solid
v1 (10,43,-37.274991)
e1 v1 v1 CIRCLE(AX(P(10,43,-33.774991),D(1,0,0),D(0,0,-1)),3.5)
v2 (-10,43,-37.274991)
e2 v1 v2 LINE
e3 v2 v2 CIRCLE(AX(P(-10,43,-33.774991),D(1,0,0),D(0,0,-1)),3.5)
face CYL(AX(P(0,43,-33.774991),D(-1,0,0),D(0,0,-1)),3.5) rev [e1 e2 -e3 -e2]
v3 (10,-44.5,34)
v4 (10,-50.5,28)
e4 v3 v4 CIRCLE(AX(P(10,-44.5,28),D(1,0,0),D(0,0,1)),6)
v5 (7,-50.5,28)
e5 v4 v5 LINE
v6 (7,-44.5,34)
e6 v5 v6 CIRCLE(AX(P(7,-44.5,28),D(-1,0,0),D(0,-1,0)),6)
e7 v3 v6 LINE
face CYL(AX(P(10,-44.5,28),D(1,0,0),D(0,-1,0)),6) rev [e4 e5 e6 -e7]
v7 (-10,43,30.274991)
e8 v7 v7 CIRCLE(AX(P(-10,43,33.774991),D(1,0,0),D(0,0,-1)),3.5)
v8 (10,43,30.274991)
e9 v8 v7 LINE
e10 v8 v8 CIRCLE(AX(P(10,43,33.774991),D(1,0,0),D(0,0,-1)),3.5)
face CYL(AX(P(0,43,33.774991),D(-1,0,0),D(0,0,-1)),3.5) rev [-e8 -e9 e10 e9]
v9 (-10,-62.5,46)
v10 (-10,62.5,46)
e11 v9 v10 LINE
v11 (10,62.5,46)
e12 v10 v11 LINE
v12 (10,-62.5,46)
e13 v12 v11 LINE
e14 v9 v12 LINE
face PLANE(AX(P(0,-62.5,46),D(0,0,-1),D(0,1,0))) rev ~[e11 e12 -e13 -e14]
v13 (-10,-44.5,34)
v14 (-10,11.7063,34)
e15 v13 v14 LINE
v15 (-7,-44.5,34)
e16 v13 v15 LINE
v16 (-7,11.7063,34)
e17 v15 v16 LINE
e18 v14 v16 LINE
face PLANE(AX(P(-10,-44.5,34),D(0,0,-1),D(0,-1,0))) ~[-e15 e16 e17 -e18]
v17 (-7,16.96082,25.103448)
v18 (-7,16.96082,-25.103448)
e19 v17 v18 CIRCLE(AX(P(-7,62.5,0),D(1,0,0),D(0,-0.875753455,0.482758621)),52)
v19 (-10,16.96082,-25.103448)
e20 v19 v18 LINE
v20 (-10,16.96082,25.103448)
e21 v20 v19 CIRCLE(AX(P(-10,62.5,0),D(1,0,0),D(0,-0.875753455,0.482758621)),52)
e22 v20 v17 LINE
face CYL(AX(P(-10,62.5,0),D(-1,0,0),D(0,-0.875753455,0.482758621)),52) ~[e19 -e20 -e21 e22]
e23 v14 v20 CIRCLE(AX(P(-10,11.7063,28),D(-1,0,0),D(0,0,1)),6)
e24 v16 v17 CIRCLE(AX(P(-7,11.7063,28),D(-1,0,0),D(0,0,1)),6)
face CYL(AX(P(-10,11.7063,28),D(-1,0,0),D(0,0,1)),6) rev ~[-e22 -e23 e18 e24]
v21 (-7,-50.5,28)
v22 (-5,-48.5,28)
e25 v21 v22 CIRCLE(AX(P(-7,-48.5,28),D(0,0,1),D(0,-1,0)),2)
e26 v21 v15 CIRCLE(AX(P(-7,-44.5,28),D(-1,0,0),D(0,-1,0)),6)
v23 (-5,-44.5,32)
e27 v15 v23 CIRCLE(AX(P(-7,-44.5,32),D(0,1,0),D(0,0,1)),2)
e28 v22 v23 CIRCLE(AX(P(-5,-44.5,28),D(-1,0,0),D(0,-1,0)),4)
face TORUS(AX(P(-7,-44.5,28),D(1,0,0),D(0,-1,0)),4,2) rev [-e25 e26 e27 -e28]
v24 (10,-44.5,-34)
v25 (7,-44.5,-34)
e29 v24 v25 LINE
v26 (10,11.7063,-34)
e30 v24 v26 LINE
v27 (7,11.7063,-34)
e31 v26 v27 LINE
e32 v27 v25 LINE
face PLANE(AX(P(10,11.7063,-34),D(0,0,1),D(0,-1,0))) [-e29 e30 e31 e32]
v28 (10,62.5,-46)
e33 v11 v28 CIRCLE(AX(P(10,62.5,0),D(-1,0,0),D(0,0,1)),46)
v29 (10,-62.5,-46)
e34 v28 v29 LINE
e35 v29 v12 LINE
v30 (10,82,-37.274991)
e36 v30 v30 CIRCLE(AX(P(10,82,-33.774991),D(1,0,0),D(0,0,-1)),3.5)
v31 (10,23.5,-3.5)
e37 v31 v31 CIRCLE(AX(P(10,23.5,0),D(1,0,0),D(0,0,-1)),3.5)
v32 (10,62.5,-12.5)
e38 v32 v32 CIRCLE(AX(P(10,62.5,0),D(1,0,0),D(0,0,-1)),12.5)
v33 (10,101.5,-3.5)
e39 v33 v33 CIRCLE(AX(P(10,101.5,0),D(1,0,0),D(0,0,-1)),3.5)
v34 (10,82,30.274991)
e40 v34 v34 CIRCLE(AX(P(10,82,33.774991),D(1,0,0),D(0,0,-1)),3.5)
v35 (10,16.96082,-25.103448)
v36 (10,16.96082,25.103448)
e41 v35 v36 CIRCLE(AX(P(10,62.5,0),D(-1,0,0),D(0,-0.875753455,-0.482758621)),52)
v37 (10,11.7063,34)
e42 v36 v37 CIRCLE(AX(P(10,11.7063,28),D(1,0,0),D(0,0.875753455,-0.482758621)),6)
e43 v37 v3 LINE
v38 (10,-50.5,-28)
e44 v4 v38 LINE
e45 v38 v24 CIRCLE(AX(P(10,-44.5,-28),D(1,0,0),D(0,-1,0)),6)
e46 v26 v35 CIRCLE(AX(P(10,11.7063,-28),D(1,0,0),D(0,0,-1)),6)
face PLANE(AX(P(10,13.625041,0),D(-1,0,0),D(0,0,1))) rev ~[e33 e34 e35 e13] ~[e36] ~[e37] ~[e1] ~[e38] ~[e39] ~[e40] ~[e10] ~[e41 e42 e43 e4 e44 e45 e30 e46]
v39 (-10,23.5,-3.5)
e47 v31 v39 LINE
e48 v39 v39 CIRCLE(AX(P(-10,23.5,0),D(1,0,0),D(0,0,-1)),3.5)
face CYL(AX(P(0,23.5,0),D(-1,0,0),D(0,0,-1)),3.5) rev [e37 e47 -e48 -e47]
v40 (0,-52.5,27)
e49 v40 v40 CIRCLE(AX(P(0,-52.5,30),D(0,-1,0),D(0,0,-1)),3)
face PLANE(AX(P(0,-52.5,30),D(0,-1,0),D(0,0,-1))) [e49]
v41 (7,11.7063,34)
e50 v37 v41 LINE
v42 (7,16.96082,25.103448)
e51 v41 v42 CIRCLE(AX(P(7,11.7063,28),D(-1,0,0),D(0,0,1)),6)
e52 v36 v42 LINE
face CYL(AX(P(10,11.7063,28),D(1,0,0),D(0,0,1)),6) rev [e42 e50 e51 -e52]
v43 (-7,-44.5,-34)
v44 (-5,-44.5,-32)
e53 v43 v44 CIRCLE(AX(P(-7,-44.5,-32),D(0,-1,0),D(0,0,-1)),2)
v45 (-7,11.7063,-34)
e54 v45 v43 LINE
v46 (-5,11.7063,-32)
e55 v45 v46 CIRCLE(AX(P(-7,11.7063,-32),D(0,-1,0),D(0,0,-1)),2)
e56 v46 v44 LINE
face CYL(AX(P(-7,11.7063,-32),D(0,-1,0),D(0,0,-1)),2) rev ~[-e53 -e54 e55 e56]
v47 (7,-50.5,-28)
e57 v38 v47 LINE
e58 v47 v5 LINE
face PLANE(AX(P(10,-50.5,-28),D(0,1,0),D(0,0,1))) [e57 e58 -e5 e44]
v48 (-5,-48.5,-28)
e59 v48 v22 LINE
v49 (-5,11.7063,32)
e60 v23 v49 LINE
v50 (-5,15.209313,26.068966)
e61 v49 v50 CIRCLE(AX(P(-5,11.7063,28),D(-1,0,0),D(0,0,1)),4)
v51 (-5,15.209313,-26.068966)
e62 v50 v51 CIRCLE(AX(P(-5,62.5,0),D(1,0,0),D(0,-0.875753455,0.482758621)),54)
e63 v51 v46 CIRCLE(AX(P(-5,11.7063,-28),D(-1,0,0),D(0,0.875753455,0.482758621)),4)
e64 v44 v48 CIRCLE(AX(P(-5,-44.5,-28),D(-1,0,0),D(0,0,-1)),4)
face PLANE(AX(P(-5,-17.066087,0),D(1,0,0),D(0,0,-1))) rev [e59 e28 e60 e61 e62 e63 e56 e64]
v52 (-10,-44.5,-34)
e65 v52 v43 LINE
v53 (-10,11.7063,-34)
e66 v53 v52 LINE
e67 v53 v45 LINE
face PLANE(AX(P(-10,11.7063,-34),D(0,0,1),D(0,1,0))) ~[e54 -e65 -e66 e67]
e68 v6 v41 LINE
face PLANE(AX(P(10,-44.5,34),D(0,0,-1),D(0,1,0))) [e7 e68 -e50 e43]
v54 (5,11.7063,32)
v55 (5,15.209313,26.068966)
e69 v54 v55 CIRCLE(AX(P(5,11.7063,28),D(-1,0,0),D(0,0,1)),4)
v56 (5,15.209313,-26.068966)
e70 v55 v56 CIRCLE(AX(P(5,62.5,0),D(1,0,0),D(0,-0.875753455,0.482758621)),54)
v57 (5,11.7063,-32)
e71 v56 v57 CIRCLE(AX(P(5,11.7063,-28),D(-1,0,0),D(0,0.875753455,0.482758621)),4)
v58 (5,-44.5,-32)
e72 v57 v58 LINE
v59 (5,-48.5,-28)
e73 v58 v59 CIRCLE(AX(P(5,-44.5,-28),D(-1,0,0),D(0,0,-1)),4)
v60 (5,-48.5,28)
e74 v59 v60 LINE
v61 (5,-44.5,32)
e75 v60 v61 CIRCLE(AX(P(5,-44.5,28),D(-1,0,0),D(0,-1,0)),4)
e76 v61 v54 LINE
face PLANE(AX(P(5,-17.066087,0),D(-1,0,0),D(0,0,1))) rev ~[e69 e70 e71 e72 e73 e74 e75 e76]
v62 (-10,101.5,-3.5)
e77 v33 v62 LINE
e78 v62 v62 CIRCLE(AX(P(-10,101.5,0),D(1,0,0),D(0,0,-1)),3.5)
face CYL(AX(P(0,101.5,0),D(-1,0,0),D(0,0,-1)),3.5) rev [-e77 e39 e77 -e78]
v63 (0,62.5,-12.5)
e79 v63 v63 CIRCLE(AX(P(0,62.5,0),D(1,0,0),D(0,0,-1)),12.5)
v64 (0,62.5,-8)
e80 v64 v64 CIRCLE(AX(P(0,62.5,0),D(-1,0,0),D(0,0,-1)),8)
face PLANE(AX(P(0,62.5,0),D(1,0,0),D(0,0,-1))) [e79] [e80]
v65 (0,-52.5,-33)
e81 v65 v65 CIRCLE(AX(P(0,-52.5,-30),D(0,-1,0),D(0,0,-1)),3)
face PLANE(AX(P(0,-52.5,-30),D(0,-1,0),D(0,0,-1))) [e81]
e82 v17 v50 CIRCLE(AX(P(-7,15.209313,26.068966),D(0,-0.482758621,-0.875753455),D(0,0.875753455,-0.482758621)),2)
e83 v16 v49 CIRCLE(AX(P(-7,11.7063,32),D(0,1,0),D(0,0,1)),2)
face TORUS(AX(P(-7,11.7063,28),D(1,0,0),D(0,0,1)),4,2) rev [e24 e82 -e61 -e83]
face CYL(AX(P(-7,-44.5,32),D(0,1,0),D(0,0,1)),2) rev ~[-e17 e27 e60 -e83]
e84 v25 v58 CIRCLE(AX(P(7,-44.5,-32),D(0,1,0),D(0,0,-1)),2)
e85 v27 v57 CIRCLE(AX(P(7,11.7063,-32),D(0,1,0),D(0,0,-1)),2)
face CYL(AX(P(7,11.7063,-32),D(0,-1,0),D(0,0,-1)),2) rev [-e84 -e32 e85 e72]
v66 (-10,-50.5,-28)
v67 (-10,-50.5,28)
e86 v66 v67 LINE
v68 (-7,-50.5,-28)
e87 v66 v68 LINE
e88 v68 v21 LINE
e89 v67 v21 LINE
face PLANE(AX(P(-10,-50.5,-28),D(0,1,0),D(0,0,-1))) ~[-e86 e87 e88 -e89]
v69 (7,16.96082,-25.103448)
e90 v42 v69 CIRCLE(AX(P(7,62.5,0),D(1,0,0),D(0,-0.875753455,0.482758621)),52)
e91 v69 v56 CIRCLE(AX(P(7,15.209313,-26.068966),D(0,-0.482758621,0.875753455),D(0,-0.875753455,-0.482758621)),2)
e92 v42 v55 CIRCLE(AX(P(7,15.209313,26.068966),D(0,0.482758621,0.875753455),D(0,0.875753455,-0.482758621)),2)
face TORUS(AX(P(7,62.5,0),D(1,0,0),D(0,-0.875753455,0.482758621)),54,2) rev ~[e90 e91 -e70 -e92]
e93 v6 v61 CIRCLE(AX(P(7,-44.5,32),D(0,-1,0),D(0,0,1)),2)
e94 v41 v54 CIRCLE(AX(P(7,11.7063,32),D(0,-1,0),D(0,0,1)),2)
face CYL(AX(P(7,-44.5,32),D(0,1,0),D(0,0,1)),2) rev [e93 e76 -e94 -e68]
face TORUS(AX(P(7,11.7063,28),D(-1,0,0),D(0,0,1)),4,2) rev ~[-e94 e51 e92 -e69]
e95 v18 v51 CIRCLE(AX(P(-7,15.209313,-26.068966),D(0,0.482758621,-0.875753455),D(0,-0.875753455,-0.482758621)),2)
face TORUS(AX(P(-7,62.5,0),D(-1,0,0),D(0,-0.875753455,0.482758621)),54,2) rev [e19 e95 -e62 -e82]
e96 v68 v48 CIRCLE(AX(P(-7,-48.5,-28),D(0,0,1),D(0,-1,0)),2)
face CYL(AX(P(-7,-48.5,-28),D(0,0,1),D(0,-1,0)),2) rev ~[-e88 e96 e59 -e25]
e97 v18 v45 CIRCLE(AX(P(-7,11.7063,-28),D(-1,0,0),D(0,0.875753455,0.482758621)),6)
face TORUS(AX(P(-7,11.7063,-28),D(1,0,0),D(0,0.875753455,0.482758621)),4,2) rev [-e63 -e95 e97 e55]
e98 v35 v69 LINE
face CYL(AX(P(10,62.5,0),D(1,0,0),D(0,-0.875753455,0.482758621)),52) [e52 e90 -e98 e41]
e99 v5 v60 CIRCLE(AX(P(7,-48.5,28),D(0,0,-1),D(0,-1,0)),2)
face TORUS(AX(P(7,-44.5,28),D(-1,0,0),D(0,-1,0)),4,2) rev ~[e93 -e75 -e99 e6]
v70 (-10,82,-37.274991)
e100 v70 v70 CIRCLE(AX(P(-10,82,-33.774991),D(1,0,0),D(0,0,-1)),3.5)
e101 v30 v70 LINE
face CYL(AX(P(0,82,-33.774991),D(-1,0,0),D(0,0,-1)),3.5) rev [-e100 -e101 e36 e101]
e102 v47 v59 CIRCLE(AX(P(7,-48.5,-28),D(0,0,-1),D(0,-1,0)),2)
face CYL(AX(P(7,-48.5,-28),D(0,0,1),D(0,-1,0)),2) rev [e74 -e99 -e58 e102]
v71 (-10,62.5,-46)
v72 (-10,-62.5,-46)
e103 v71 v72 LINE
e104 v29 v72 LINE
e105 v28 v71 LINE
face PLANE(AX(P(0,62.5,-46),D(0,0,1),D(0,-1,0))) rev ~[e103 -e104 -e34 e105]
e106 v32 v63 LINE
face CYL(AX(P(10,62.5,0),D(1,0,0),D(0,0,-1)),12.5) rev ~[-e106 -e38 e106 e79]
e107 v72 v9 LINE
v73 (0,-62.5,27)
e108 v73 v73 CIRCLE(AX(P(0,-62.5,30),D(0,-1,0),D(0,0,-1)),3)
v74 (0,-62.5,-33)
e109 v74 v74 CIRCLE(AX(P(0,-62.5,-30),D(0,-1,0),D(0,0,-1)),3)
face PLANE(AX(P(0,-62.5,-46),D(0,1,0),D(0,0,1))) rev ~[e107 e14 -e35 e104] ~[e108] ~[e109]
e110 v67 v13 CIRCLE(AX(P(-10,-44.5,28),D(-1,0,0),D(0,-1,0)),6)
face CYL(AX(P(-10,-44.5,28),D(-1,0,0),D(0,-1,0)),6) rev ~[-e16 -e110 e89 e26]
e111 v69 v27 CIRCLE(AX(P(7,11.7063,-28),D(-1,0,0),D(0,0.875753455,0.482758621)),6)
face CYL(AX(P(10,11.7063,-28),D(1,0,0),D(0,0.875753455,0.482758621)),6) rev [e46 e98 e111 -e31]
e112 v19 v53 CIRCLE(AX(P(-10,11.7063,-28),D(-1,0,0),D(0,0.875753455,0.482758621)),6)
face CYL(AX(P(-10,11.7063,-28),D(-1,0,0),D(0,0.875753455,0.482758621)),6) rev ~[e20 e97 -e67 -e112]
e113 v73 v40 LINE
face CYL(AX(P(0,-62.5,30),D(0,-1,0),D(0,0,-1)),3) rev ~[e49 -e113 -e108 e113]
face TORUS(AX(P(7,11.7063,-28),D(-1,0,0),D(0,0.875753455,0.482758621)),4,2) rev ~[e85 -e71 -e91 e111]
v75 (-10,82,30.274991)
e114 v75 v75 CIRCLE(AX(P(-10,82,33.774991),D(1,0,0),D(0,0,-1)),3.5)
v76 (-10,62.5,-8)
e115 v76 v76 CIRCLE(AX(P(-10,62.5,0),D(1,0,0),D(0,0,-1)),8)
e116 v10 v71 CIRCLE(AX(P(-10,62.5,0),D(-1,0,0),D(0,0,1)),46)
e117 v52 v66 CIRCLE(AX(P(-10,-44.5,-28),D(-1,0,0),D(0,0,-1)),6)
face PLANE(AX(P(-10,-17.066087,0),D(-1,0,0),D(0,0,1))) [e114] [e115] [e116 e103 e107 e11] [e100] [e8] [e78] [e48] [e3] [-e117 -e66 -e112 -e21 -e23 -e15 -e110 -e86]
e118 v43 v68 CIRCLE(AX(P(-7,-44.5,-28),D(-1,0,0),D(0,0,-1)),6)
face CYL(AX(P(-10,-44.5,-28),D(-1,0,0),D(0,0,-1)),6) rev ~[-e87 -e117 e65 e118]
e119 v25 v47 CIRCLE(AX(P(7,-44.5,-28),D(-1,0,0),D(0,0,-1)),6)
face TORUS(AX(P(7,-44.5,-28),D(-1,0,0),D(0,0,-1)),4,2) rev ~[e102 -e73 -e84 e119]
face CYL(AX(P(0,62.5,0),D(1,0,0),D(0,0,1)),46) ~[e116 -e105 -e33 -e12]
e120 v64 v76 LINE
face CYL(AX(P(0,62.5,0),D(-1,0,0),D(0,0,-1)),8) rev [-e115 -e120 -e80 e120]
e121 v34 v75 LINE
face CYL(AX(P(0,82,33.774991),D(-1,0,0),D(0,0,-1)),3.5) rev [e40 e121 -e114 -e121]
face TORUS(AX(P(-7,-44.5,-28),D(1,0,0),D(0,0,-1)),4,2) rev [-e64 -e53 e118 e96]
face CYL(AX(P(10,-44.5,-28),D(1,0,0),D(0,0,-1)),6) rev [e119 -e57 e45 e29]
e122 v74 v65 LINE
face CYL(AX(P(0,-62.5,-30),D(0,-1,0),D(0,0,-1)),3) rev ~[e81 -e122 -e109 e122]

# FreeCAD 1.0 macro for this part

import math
import FreeCAD as App
import Part
import Sketcher
from FreeCAD import Vector


def edges_at(feature, points):
    """Names of the edges that pass closest to the given points."""
    edges = feature.Shape.Edges
    near = lambda p: min(range(len(edges)), key=lambda i: edges[i].distToShape(Part.Vertex(*p))[0])
    return sorted({f"Edge{near(p) + 1}" for p in points})

doc = App.newDocument("Part")
body = doc.addObject("PartDesign::Body", "Body")

sketch1 = body.newObject("Sketcher::SketchObject", "Sketch")
sketch1.AttachmentSupport = (doc.getObject("YZ_Plane"), [""])
sketch1.MapMode = "FlatFace"
sketch1.addGeometry([
    Part.ArcOfCircle(Part.Circle(Vector(62.5, 0, 0), Vector(0, 0, 1), 46), math.radians(-90), math.radians(90)),
    Part.LineSegment(Vector(62.5, 46, 0), Vector(-62.5, 46, 0)),
    Part.LineSegment(Vector(-62.5, 46, 0), Vector(-62.5, -46, 0)),
    Part.LineSegment(Vector(-62.5, -46, 0), Vector(62.5, -46, 0)),
    Part.Circle(Vector(23.5, 0, 0), Vector(0, 0, 1), 3.5),
    Part.Circle(Vector(43, -33.774991, 0), Vector(0, 0, 1), 3.5),
    Part.Circle(Vector(82, -33.774991, 0), Vector(0, 0, 1), 3.5),
    Part.Circle(Vector(62.5, 0, 0), Vector(0, 0, 1), 8),
    Part.Circle(Vector(43, 33.774991, 0), Vector(0, 0, 1), 3.5),
    Part.Circle(Vector(101.5, 0, 0), Vector(0, 0, 1), 3.5),
    Part.Circle(Vector(82, 33.774991, 0), Vector(0, 0, 1), 3.5),
], False)
sketch1.addConstraint([
    Sketcher.Constraint("Tangent", 0, 2, 1, 1),
    Sketcher.Constraint("Coincident", 1, 2, 2, 1),
    Sketcher.Constraint("Coincident", 2, 2, 3, 1),
    Sketcher.Constraint("Tangent", 3, 2, 0, 1),
    Sketcher.Constraint("Horizontal", 1),
    Sketcher.Constraint("Vertical", 2),
    Sketcher.Constraint("Horizontal", 3),
    Sketcher.Constraint("Coincident", 7, 3, 0, 3),
    Sketcher.Constraint("Equal", 4, 5),
    Sketcher.Constraint("Equal", 5, 6),
    Sketcher.Constraint("Equal", 6, 8),
    Sketcher.Constraint("Equal", 8, 9),
    Sketcher.Constraint("Equal", 9, 10),
    Sketcher.Constraint("Symmetric", 0, 2, 2, 2, -1, 1),
    Sketcher.Constraint("Symmetric", 5, 3, 8, 3, -1),
    Sketcher.Constraint("Symmetric", 6, 3, 10, 3, -1),
    Sketcher.Constraint("PointOnObject", 4, 3, -1),
    Sketcher.Constraint("PointOnObject", 9, 3, -1),
    Sketcher.Constraint("Horizontal", 5, 3, 6, 3),
    Sketcher.Constraint("Diameter", 4, 7.0),
    Sketcher.Constraint("Diameter", 7, 16.0),
    Sketcher.Constraint("Radius", 0, 46.0),
    Sketcher.Constraint("DistanceX", 1, 2, 1, 1, 125.0),
    Sketcher.Constraint("DistanceX", -1, 1, 5, 3, 43.0),
    Sketcher.Constraint("DistanceX", -1, 1, 6, 3, 82.0),
    Sketcher.Constraint("DistanceX", 4, 3, 0, 3, 39.0),
    Sketcher.Constraint("DistanceX", 0, 3, 9, 3, 39.0),
    Sketcher.Constraint("DistanceY", 5, 3, -1, 1, 33.774991),
])
pad1 = body.newObject("PartDesign::Pad", "Pad")
pad1.Profile = sketch1
pad1.Length = 20
pad1.Midplane = True

sketch2 = body.newObject("Sketcher::SketchObject", "Sketch001")
sketch2.AttachmentSupport = (doc.getObject("YZ_Plane"), [""])
sketch2.MapMode = "FlatFace"
sketch2.AttachmentOffset = App.Placement(Vector(0, 0, 10), App.Rotation())
sketch2.addGeometry([
    Part.ArcOfCircle(Part.Circle(Vector(62.5, 0, 0), Vector(0, 0, 1), 52), math.radians(151.134273), math.radians(208.865727)),
    Part.ArcOfCircle(Part.Circle(Vector(11.7063, 28, 0), Vector(0, 0, 1), 6), math.radians(-28.865727), math.radians(90)),
    Part.LineSegment(Vector(11.7063, 34, 0), Vector(-44.5, 34, 0)),
    Part.ArcOfCircle(Part.Circle(Vector(-44.5, 28, 0), Vector(0, 0, 1), 6), math.radians(90), math.radians(180)),
    Part.LineSegment(Vector(-50.5, 28, 0), Vector(-50.5, -28, 0)),
    Part.ArcOfCircle(Part.Circle(Vector(-44.5, -28, 0), Vector(0, 0, 1), 6), math.radians(180), math.radians(270)),
    Part.LineSegment(Vector(-44.5, -34, 0), Vector(11.7063, -34, 0)),
    Part.ArcOfCircle(Part.Circle(Vector(11.7063, -28, 0), Vector(0, 0, 1), 6), math.radians(-90), math.radians(28.865727)),
], False)
sketch2.addConstraint([
    Sketcher.Constraint("Tangent", 0, 1, 1, 1),
    Sketcher.Constraint("Tangent", 1, 2, 2, 1),
    Sketcher.Constraint("Tangent", 2, 2, 3, 1),
    Sketcher.Constraint("Tangent", 3, 2, 4, 1),
    Sketcher.Constraint("Tangent", 4, 2, 5, 1),
    Sketcher.Constraint("Tangent", 5, 2, 6, 1),
    Sketcher.Constraint("Tangent", 6, 2, 7, 1),
    Sketcher.Constraint("Tangent", 7, 2, 0, 2),
    Sketcher.Constraint("Horizontal", 2),
    Sketcher.Constraint("Vertical", 4),
    Sketcher.Constraint("Horizontal", 6),
    Sketcher.Constraint("Equal", 1, 3),
    Sketcher.Constraint("Equal", 3, 5),
    Sketcher.Constraint("Equal", 5, 7),
    Sketcher.Constraint("Symmetric", 1, 3, 7, 3, -1),
    Sketcher.Constraint("Radius", 0, 52.0),
    Sketcher.Constraint("Radius", 1, 6.0),
    Sketcher.Constraint("DistanceY", 4, 2, 4, 1, 56.0),
    Sketcher.Constraint("DistanceX", 3, 3, 0, 3, 107.0),
    Sketcher.Constraint("DistanceX", -1, 1, 0, 3, 62.5),
])
pocket1 = body.newObject("PartDesign::Pocket", "Pocket")
pocket1.Profile = sketch2
pocket1.Length = 5
doc.recompute()

fillet = body.newObject("PartDesign::Fillet", "Fillet")
fillet.Base = (pocket1, edges_at(pocket1, [
    (5, -16.397, -34),
    (5, 16.873, 31.051),
    (5, 10.5, 0),
    (5, 16.873, -31.051),
    (5, -48.743, -32.243),
    (5, -50.5, 0),
    (5, -48.743, 32.243),
    (5, -16.397, 34),
]))
fillet.Radius = 2

sketch3 = body.newObject("Sketcher::SketchObject", "Sketch002")
sketch3.AttachmentSupport = (doc.getObject("YZ_Plane"), [""])
sketch3.MapMode = "FlatFace"
sketch3.AttachmentOffset = App.Placement(Vector(0, 0, 10), App.Rotation())
sketch3.addGeometry(Part.Circle(Vector(62.5, 0, 0), Vector(0, 0, 1), 12.5), False)
sketch3.addConstraint([
    Sketcher.Constraint("PointOnObject", 0, 3, -1),
    Sketcher.Constraint("Diameter", 0, 25.0),
    Sketcher.Constraint("DistanceX", -1, 1, 0, 3, 62.5),
])
pocket2 = body.newObject("PartDesign::Pocket", "Pocket001")
pocket2.Profile = sketch3
pocket2.Length = 10
doc.recompute()

mirrored = body.newObject("PartDesign::Mirrored", "Mirrored")
mirrored.Originals = [pocket1]
mirrored.MirrorPlane = (doc.getObject("YZ_Plane"), [""])
body.Tip = mirrored
doc.recompute()

fillet2 = body.newObject("PartDesign::Fillet", "Fillet001")
fillet2.Base = (mirrored, edges_at(mirrored, [
    (-5, -16.397, -34),
    (-5, 16.873, 31.051),
    (-5, 10.5, 0),
    (-5, 16.873, -31.051),
    (-5, -48.743, -32.243),
    (-5, -50.5, 0),
    (-5, -48.743, 32.243),
    (-5, -16.397, 34),
]))
fillet2.Radius = 2

sketch4 = body.newObject("Sketcher::SketchObject", "Sketch003")
sketch4.AttachmentSupport = (doc.getObject("XZ_Plane"), [""])
sketch4.MapMode = "FlatFace"
sketch4.AttachmentOffset = App.Placement(Vector(0, 0, 62.5), App.Rotation())
sketch4.addGeometry([
    Part.Circle(Vector(0, 30, 0), Vector(0, 0, 1), 3),
    Part.Circle(Vector(0, -30, 0), Vector(0, 0, 1), 3),
], False)
sketch4.addConstraint([
    Sketcher.Constraint("Equal", 0, 1),
    Sketcher.Constraint("Symmetric", 0, 3, 1, 3, -1, 1),
    Sketcher.Constraint("PointOnObject", 0, 3, -2),
    Sketcher.Constraint("Diameter", 0, 6.0),
    Sketcher.Constraint("DistanceY", -1, 1, 0, 3, 30.0),
])
pocket3 = body.newObject("PartDesign::Pocket", "Pocket002")
pocket3.Profile = sketch4
pocket3.Length = 10

doc.recompute()
